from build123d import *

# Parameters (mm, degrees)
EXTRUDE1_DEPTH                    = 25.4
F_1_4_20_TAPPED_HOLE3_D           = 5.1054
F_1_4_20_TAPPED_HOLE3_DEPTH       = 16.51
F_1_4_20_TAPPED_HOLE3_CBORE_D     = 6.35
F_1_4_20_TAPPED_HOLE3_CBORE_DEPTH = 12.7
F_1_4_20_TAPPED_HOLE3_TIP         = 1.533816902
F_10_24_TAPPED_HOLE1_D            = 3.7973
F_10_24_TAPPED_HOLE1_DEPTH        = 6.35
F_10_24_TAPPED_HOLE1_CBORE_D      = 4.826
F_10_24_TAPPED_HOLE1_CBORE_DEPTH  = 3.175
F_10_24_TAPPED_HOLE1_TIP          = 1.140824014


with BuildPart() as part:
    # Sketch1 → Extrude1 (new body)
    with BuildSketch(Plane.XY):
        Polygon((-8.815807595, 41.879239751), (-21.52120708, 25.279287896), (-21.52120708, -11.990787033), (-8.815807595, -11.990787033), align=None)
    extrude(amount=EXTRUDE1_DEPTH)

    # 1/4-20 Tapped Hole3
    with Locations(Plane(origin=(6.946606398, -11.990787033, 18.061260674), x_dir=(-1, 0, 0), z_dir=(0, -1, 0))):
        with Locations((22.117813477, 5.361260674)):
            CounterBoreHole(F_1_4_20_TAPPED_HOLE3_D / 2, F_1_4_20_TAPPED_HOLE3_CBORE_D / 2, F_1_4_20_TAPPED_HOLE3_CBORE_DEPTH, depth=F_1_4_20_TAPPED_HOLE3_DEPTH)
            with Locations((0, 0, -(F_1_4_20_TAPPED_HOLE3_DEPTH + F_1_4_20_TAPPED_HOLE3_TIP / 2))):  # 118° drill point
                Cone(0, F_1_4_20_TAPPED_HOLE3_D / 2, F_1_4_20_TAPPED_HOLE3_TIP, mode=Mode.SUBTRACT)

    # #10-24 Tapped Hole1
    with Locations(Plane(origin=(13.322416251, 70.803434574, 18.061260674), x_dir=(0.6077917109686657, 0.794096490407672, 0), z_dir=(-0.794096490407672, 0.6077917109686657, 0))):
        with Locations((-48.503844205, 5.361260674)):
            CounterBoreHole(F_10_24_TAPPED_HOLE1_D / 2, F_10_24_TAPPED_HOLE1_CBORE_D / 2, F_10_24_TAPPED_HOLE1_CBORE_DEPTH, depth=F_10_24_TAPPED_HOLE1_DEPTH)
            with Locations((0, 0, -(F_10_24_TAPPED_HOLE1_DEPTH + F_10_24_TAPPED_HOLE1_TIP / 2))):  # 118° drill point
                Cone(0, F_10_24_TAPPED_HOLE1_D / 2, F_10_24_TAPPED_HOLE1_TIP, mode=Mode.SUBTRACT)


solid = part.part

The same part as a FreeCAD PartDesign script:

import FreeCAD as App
import Part
import Sketcher
from FreeCAD import Vector
Q = App.Units.Quantity

doc = App.newDocument("Part")
body = doc.addObject("PartDesign::Body", "Body")

sketch1 = body.newObject("Sketcher::SketchObject", "Sketch")
sketch1.AttachmentSupport = (doc.getObject("XY_Plane"), [""])
sketch1.MapMode = "FlatFace"
sketch1.addGeometry(Part.LineSegment(Vector(-8.815808, 41.87924, 0), Vector(-21.521207, 25.279288, 0)), False)
sketch1.addGeometry(Part.LineSegment(Vector(-21.521207, 25.279288, 0), Vector(-21.521207, -11.990787, 0)), False)
sketch1.addGeometry(Part.LineSegment(Vector(-21.521207, -11.990787, 0), Vector(-8.815808, -11.990787, 0)), False)
sketch1.addGeometry(Part.LineSegment(Vector(-8.815808, -11.990787, 0), Vector(-8.815808, 41.87924, 0)), False)
sketch1.addConstraint(Sketcher.Constraint("Coincident", 0, 2, 1, 1))
sketch1.addConstraint(Sketcher.Constraint("Coincident", 1, 2, 2, 1))
sketch1.addConstraint(Sketcher.Constraint("Coincident", 2, 2, 3, 1))
sketch1.addConstraint(Sketcher.Constraint("Coincident", 3, 2, 0, 1))
sketch1.addConstraint(Sketcher.Constraint("Vertical", 1))
sketch1.addConstraint(Sketcher.Constraint("Horizontal", 2))
sketch1.addConstraint(Sketcher.Constraint("Vertical", 3))
sketch1.addConstraint(Sketcher.Constraint("Angle", 0, Q("-127.43 deg")))
sketch1.addConstraint(Sketcher.Constraint("Distance", 0, Q("0.823 in")))
sketch1.addConstraint(Sketcher.Constraint("DistanceY", 1, 2, 1, 1, 37.270075))
sketch1.addConstraint(Sketcher.Constraint("DistanceY", -1, 1, 3, 2, 41.87924))
sketch1.addConstraint(Sketcher.Constraint("DistanceX", 0, 2, -1, 1, 21.521207))
pad1 = body.newObject("PartDesign::Pad", "Pad")
pad1.Profile = sketch1
pad1.Length = Q("1 in")

sketch2 = body.newObject("Sketcher::SketchObject", "Sketch001")
sketch2.AttachmentSupport = (doc.getObject("XZ_Plane"), [""])
sketch2.MapMode = "FlatFace"
sketch2.AttachmentOffset = App.Placement(Vector(0, 0, 11.990787), App.Rotation())
sketch2.addGeometry(Part.Circle(Vector(-15.171207, 12.7, 0), Vector(0, 0, 1), 2.5527), False)
sketch2.addConstraint(Sketcher.Constraint("Diameter", 0, Q("0.201 in")))
sketch2.addConstraint(Sketcher.Constraint("DistanceY", -1, 1, 0, 3, Q("0.5 in")))
sketch2.addConstraint(Sketcher.Constraint("DistanceX", 0, 3, -1, 1, 15.171207))
doc.recompute()
hole = body.newObject("PartDesign::Hole", "Hole")
hole.Profile = sketch2
hole.ThreadType = "None"
hole.Diameter = Q("0.201 in")
hole.DepthType = "Dimension"
hole.Depth = Q("0.65 in")
hole.DrillPoint = "Angled"
hole.DrillPointAngle = 118
hole.HoleCutType = "Counterbore"
hole.HoleCutDiameter = Q("0.25 in")
hole.HoleCutDepth = Q("0.5 in")

sketch3 = body.newObject("Sketcher::SketchObject", "Sketch002")
sketch3.Placement = App.Placement(Vector(-25.77197, 19.72555, 0), App.Rotation(Vector(0.607791711, 0.79409649, 0), Vector(0, 0, -0.999999999), Vector(-0.79409649, 0.607791711, 0), "ZXY"))
sketch3.addGeometry(Part.Circle(Vector(15.818169, -12.7, 0), Vector(0, 0, 1), 1.89865), False)
sketch3.addConstraint(Sketcher.Constraint("Diameter", 0, Q("0.1495 in")))
sketch3.addConstraint(Sketcher.Constraint("DistanceY", 0, 3, -1, 1, Q("0.5 in")))
sketch3.addConstraint(Sketcher.Constraint("DistanceX", -1, 1, 0, 3, 15.818169))
doc.recompute()
hole2 = body.newObject("PartDesign::Hole", "Hole001")
hole2.Profile = sketch3
hole2.ThreadType = "None"
hole2.Diameter = Q("0.1495 in")
hole2.DepthType = "Dimension"
hole2.Depth = Q("0.25 in")
hole2.DrillPoint = "Angled"
hole2.DrillPointAngle = 118
hole2.HoleCutType = "Counterbore"
hole2.HoleCutDiameter = Q("0.19 in")
hole2.HoleCutDepth = Q("0.125 in")

doc.recompute()
